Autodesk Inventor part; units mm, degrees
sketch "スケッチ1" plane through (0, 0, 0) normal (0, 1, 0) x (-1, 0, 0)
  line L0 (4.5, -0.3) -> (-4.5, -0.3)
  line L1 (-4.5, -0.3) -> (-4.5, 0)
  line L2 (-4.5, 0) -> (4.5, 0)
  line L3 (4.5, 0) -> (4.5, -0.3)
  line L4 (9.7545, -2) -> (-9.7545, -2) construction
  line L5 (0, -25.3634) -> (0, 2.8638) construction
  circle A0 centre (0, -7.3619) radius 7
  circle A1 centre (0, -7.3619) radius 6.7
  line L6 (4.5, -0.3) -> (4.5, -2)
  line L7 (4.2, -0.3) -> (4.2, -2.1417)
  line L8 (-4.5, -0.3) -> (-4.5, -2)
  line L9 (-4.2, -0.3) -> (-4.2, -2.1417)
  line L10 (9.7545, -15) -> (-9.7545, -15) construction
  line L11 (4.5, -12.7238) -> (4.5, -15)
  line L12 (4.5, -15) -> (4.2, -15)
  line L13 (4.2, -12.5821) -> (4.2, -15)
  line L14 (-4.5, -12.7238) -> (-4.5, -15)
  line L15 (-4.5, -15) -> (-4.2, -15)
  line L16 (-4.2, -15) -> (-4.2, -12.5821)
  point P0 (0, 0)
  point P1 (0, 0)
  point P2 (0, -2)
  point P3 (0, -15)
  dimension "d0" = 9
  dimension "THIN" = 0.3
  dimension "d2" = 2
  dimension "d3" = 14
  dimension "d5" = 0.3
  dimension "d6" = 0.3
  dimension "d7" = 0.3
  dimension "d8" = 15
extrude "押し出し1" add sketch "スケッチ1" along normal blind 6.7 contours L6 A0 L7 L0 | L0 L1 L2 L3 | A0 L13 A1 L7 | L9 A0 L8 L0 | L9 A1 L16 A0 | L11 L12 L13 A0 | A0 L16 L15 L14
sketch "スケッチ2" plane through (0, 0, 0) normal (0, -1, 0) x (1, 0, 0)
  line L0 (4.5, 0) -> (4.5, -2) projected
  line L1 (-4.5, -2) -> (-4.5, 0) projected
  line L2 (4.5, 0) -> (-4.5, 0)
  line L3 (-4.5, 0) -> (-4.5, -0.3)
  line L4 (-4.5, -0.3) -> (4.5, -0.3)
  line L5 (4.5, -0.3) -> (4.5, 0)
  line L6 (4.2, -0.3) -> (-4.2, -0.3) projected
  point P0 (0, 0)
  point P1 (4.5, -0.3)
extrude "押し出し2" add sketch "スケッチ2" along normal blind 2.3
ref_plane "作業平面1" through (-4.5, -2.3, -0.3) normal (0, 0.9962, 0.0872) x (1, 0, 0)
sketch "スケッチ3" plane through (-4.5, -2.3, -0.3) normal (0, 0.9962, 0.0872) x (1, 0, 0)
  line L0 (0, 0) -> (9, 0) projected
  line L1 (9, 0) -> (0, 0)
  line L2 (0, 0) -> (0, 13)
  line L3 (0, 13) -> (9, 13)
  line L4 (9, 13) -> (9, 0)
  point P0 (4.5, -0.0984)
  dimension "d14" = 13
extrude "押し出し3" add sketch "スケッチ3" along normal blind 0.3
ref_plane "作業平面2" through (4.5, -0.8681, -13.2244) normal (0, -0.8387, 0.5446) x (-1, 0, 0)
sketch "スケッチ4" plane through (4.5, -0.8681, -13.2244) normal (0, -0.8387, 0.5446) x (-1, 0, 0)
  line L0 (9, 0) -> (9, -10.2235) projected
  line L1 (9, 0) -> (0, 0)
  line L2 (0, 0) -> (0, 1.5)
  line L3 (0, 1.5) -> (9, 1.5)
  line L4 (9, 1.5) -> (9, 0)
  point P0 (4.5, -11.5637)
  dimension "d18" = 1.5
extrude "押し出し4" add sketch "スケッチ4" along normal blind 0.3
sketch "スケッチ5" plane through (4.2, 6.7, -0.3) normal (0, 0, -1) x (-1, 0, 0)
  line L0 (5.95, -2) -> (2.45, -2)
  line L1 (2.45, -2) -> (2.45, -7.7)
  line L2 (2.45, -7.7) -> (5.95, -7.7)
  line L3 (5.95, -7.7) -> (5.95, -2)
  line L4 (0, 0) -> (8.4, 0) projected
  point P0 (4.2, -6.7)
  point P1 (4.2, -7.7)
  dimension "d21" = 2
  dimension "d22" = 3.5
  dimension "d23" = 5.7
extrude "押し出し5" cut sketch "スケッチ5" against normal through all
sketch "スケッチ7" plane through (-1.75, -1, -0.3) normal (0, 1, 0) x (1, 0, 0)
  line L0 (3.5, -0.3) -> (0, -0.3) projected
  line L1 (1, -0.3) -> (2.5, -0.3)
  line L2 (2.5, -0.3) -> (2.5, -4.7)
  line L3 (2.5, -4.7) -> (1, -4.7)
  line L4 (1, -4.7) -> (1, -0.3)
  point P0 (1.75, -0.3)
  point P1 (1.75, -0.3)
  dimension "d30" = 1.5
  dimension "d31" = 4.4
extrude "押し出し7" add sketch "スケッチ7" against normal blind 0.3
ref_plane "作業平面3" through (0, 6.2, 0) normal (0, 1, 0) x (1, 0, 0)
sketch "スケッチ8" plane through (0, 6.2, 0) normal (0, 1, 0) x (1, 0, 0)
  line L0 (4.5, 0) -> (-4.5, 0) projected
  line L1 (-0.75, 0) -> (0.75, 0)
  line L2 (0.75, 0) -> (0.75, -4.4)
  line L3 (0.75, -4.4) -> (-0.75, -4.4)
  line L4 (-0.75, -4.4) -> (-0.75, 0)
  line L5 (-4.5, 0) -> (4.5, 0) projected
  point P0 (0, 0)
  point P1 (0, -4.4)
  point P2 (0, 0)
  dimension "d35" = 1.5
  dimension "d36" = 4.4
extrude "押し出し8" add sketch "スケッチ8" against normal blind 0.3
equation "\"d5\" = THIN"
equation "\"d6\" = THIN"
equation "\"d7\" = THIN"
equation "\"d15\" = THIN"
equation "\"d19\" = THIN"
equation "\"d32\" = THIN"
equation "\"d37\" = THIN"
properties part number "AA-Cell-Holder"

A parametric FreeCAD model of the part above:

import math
import FreeCAD as App
import Part
import Sketcher
Q = App.Units.Quantity


def add_polygon(sketch, points):
    """Adds a closed chain of lines whose ends are joined by coincident constraints."""
    first, n = sketch.GeometryCount, len(points)
    for a, b in zip(points, points[1:] + points[:1]):
        sketch.addGeometry(Part.LineSegment(App.Vector(*a, 0), App.Vector(*b, 0)), False)
    for i in range(n):
        sketch.addConstraint(Sketcher.Constraint("Coincident", first + i, 2, first + (i + 1) % n, 1))

doc = App.newDocument("Part")
body = doc.addObject("PartDesign::Body", "Body")

sketch1 = body.newObject("Sketcher::SketchObject", "Sketch")
sketch1.AttachmentSupport = (doc.getObject("XZ_Plane"), [""])
sketch1.MapMode = "FlatFace"
sketch1.addGeometry(Part.LineSegment(App.Vector(-4.5, -2, 0), App.Vector(-4.5, 0, 0)), False)
sketch1.addGeometry(Part.LineSegment(App.Vector(-4.5, 0, 0), App.Vector(4.5, 0, 0)), False)
sketch1.addGeometry(Part.LineSegment(App.Vector(4.5, 0, 0), App.Vector(4.5, -2, 0)), False)
sketch1.addGeometry(Part.ArcOfCircle(Part.Circle(App.Vector(0, -7.36, 0), App.Vector(0, 0, 1), 7), math.radians(-50), math.radians(50)), False)
sketch1.addGeometry(Part.LineSegment(App.Vector(4.5, -12.72, 0), App.Vector(4.5, -15, 0)), False)
sketch1.addGeometry(Part.LineSegment(App.Vector(4.5, -15, 0), App.Vector(4.2, -15, 0)), False)
sketch1.addGeometry(Part.LineSegment(App.Vector(4.2, -15, 0), App.Vector(4.2, -12.58, 0)), False)
sketch1.addGeometry(Part.ArcOfCircle(Part.Circle(App.Vector(0, -7.36, 0), App.Vector(0, 0, 1), 6.7), math.radians(-51), math.radians(51)), False)
sketch1.addGeometry(Part.LineSegment(App.Vector(4.2, -2.14, 0), App.Vector(4.2, -0.3, 0)), False)
sketch1.addGeometry(Part.LineSegment(App.Vector(4.2, -0.3, 0), App.Vector(-4.2, -0.3, 0)), False)
sketch1.addGeometry(Part.LineSegment(App.Vector(-4.2, -0.3, 0), App.Vector(-4.2, -2.14, 0)), False)
sketch1.addGeometry(Part.ArcOfCircle(Part.Circle(App.Vector(0, -7.36, 0), App.Vector(0, 0, 1), 6.7), math.radians(129), math.radians(231)), False)
sketch1.addGeometry(Part.LineSegment(App.Vector(-4.2, -12.58, 0), App.Vector(-4.2, -15, 0)), False)
sketch1.addGeometry(Part.LineSegment(App.Vector(-4.2, -15, 0), App.Vector(-4.5, -15, 0)), False)
sketch1.addGeometry(Part.LineSegment(App.Vector(-4.5, -15, 0), App.Vector(-4.5, -12.72, 0)), False)
sketch1.addGeometry(Part.ArcOfCircle(Part.Circle(App.Vector(0, -7.36, 0), App.Vector(0, 0, 1), 7), math.radians(130), math.radians(230)), False)
sketch1.addConstraint(Sketcher.Constraint("Coincident", 0, 2, 1, 1))
sketch1.addConstraint(Sketcher.Constraint("Coincident", 1, 2, 2, 1))
sketch1.addConstraint(Sketcher.Constraint("Coincident", 2, 2, 3, 2))
sketch1.addConstraint(Sketcher.Constraint("Coincident", 3, 1, 4, 1))
sketch1.addConstraint(Sketcher.Constraint("Coincident", 4, 2, 5, 1))
sketch1.addConstraint(Sketcher.Constraint("Coincident", 5, 2, 6, 1))
sketch1.addConstraint(Sketcher.Constraint("Coincident", 6, 2, 7, 1))
sketch1.addConstraint(Sketcher.Constraint("Coincident", 7, 2, 8, 1))
sketch1.addConstraint(Sketcher.Constraint("Coincident", 8, 2, 9, 1))
sketch1.addConstraint(Sketcher.Constraint("Coincident", 9, 2, 10, 1))
sketch1.addConstraint(Sketcher.Constraint("Coincident", 10, 2, 11, 1))
sketch1.addConstraint(Sketcher.Constraint("Coincident", 11, 2, 12, 1))
sketch1.addConstraint(Sketcher.Constraint("Coincident", 12, 2, 13, 1))
sketch1.addConstraint(Sketcher.Constraint("Coincident", 13, 2, 14, 1))
sketch1.addConstraint(Sketcher.Constraint("Coincident", 14, 2, 15, 2))
sketch1.addConstraint(Sketcher.Constraint("Coincident", 15, 1, 0, 1))
sketch1.addConstraint(Sketcher.Constraint("Vertical", 0))
sketch1.addConstraint(Sketcher.Constraint("Horizontal", 1))
sketch1.addConstraint(Sketcher.Constraint("Vertical", 2))
sketch1.addConstraint(Sketcher.Constraint("Vertical", 4))
sketch1.addConstraint(Sketcher.Constraint("Horizontal", 5))
sketch1.addConstraint(Sketcher.Constraint("Vertical", 6))
sketch1.addConstraint(Sketcher.Constraint("Vertical", 8))
sketch1.addConstraint(Sketcher.Constraint("Horizontal", 9))
sketch1.addConstraint(Sketcher.Constraint("Vertical", 10))
sketch1.addConstraint(Sketcher.Constraint("Vertical", 12))
sketch1.addConstraint(Sketcher.Constraint("Horizontal", 13))
sketch1.addConstraint(Sketcher.Constraint("Vertical", 14))
sketch1.addConstraint(Sketcher.Constraint("Coincident", 7, 3, 3, 3))
sketch1.addConstraint(Sketcher.Constraint("Coincident", 11, 3, 3, 3))
sketch1.addConstraint(Sketcher.Constraint("Coincident", 15, 3, 3, 3))
sketch1.addConstraint(Sketcher.Constraint("Equal", 7, 11))
sketch1.addConstraint(Sketcher.Constraint("Equal", 3, 15))
sketch1.addConstraint(Sketcher.Constraint("Symmetric", 0, 2, 1, 2, -1, 1))
sketch1.addConstraint(Sketcher.Constraint("Symmetric", 7, 2, 10, 2, -2))
sketch1.addConstraint(Sketcher.Constraint("Symmetric", 5, 2, 12, 2, -2))
sketch1.addConstraint(Sketcher.Constraint("Horizontal", 3, 1, 14, 2))
sketch1.addConstraint(Sketcher.Constraint("Vertical", 2, 2, 3, 1))
sketch1.addConstraint(Sketcher.Constraint("Vertical", 6, 2, 7, 2))
sketch1.addConstraint(Sketcher.Constraint("Radius", 3, Q("7 mm")))
sketch1.addConstraint(Sketcher.Constraint("DistanceX", 1, 1, 1, 2, Q("9 mm")))
sketch1.addConstraint(Sketcher.Constraint("DistanceY", 0, 1, 0, 2, Q("2 mm")))
sketch1.addConstraint(Sketcher.Constraint("DistanceX", 5, 2, 5, 1, Q("0.3 mm")))
sketch1.addConstraint(Sketcher.Constraint("DistanceY", 4, 2, -1, 1, Q("15 mm")))
sketch1.addConstraint(Sketcher.Constraint("DistanceY", 8, 2, -1, 1, Q("0.3 mm")))
sketch1.addConstraint(Sketcher.Constraint("Radius", 7, Q("6.7 mm")))
pad1 = body.newObject("PartDesign::Pad", "Pad")
pad1.Profile = sketch1
pad1.Length = 6.7
pad1.Reversed = True

sketch2 = body.newObject("Sketcher::SketchObject", "Sketch001")
sketch2.AttachmentSupport = (doc.getObject("XZ_Plane"), [""])
sketch2.MapMode = "FlatFace"
add_polygon(sketch2, [(4.5, -0.3), (4.5, 0), (-4.5, 0), (-4.5, -0.3)])
sketch2.addConstraint(Sketcher.Constraint("Vertical", 0))
sketch2.addConstraint(Sketcher.Constraint("Horizontal", 1))
sketch2.addConstraint(Sketcher.Constraint("Vertical", 2))
sketch2.addConstraint(Sketcher.Constraint("Horizontal", 3))
sketch2.addConstraint(Sketcher.Constraint("Symmetric", 0, 2, 1, 2, -1, 1))
sketch2.addConstraint(Sketcher.Constraint("DistanceX", 1, 2, 1, 1, Q("9 mm")))
sketch2.addConstraint(Sketcher.Constraint("DistanceY", 0, 1, 0, 2, Q("0.3 mm")))
pad2 = body.newObject("PartDesign::Pad", "Pad001")
pad2.Profile = sketch2
pad2.Length = 2.3

sketch3 = body.newObject("Sketcher::SketchObject", "Sketch002")
sketch3.Placement = App.Placement(App.Vector(-4.5, -2.3, -0.3), App.Rotation(App.Vector(1, 0, 0), App.Vector(0, 0.087155743, -0.996194698), App.Vector(0, 0.996194698, 0.087155743), "ZXY"))
add_polygon(sketch3, [(0, 13), (0, 0), (9, 0), (9, 13)])
sketch3.addConstraint(Sketcher.Constraint("Vertical", 0))
sketch3.addConstraint(Sketcher.Constraint("Horizontal", 1))
sketch3.addConstraint(Sketcher.Constraint("Vertical", 2))
sketch3.addConstraint(Sketcher.Constraint("Horizontal", 3))
sketch3.addConstraint(Sketcher.Constraint("Coincident", 0, 2, -1, 1))
sketch3.addConstraint(Sketcher.Constraint("DistanceY", 0, 2, 0, 1, Q("13 mm")))
sketch3.addConstraint(Sketcher.Constraint("DistanceX", 1, 1, 1, 2, Q("9 mm")))
pad3 = body.newObject("PartDesign::Pad", "Pad002")
pad3.Profile = sketch3
pad3.Length = 0.3

sketch4 = body.newObject("Sketcher::SketchObject", "Sketch003")
sketch4.Placement = App.Placement(App.Vector(4.5, -0.8681, -13.2244), App.Rotation(App.Vector(-1, 0, 0), App.Vector(0, -0.544639035, -0.838670568), App.Vector(0, -0.838670568, 0.544639035), "ZXY"))
add_polygon(sketch4, [(0, 0), (9, 0), (9, 1.5), (0, 1.5)])
sketch4.addConstraint(Sketcher.Constraint("Horizontal", 0))
sketch4.addConstraint(Sketcher.Constraint("Vertical", 1))
sketch4.addConstraint(Sketcher.Constraint("Horizontal", 2))
sketch4.addConstraint(Sketcher.Constraint("Vertical", 3))
sketch4.addConstraint(Sketcher.Constraint("Coincident", 3, 2, -1, 1))
sketch4.addConstraint(Sketcher.Constraint("DistanceY", 1, 1, 1, 2, Q("1.5 mm")))
sketch4.addConstraint(Sketcher.Constraint("DistanceX", 0, 1, 0, 2, Q("9 mm")))
pad4 = body.newObject("PartDesign::Pad", "Pad003")
pad4.Profile = sketch4
pad4.Length = 0.3

sketch5 = body.newObject("Sketcher::SketchObject", "Sketch004")
sketch5.AttachmentSupport = (doc.getObject("XY_Plane"), [""])
sketch5.MapMode = "FlatFace"
sketch5.AttachmentOffset = App.Placement(App.Vector(0, 0, -0.3), App.Rotation())
add_polygon(sketch5, [(-1.8, -1), (-1.8, 4.7), (1.8, 4.7), (1.8, -1)])
sketch5.addConstraint(Sketcher.Constraint("Vertical", 0))
sketch5.addConstraint(Sketcher.Constraint("Horizontal", 1))
sketch5.addConstraint(Sketcher.Constraint("Vertical", 2))
sketch5.addConstraint(Sketcher.Constraint("Horizontal", 3))
sketch5.addConstraint(Sketcher.Constraint("DistanceX", 1, 1, 1, 2, Q("3.5 mm")))
sketch5.addConstraint(Sketcher.Constraint("DistanceY", 0, 1, 0, 2, Q("5.7 mm")))
sketch5.addConstraint(Sketcher.Constraint("DistanceY", 2, 2, -1, 1, Q("1 mm")))
sketch5.addConstraint(Sketcher.Constraint("DistanceX", 0, 2, -1, 1, Q("1.75 mm")))
pocket1 = body.newObject("PartDesign::Pocket", "Pocket")
pocket1.Profile = sketch5
pocket1.Type = "ThroughAll"
pocket1.Reversed = True

sketch6 = body.newObject("Sketcher::SketchObject", "Sketch005")
sketch6.AttachmentSupport = (doc.getObject("XZ_Plane"), [""])
sketch6.MapMode = "FlatFace"
sketch6.AttachmentOffset = App.Placement(App.Vector(0, 0, 1), App.Rotation())
add_polygon(sketch6, [(0.8, 4.4), (0.8, 0), (-0.8, 0), (-0.8, 4.4)])
sketch6.addConstraint(Sketcher.Constraint("Vertical", 0))
sketch6.addConstraint(Sketcher.Constraint("Horizontal", 1))
sketch6.addConstraint(Sketcher.Constraint("Vertical", 2))
sketch6.addConstraint(Sketcher.Constraint("Horizontal", 3))
sketch6.addConstraint(Sketcher.Constraint("Symmetric", 0, 2, 1, 2, -1, 1))
sketch6.addConstraint(Sketcher.Constraint("DistanceX", 1, 2, 1, 1, Q("1.5 mm")))
sketch6.addConstraint(Sketcher.Constraint("DistanceY", 0, 2, 0, 1, Q("4.4 mm")))
pad5 = body.newObject("PartDesign::Pad", "Pad004")
pad5.Profile = sketch6
pad5.Length = 0.3

sketch7 = body.newObject("Sketcher::SketchObject", "Sketch006")
sketch7.AttachmentSupport = (doc.getObject("XZ_Plane"), [""])
sketch7.MapMode = "FlatFace"
sketch7.AttachmentOffset = App.Placement(App.Vector(0, 0, -6.2), App.Rotation())
add_polygon(sketch7, [(0.8, 4.4), (0.8, 0), (-0.8, 0), (-0.8, 4.4)])
sketch7.addConstraint(Sketcher.Constraint("Vertical", 0))
sketch7.addConstraint(Sketcher.Constraint("Horizontal", 1))
sketch7.addConstraint(Sketcher.Constraint("Vertical", 2))
sketch7.addConstraint(Sketcher.Constraint("Horizontal", 3))
sketch7.addConstraint(Sketcher.Constraint("Symmetric", 0, 2, 1, 2, -1, 1))
sketch7.addConstraint(Sketcher.Constraint("DistanceX", 1, 2, 1, 1, Q("1.5 mm")))
sketch7.addConstraint(Sketcher.Constraint("DistanceY", 0, 2, 0, 1, Q("4.4 mm")))
pad6 = body.newObject("PartDesign::Pad", "Pad005")
pad6.Profile = sketch7
pad6.Length = 0.3

doc.recompute()
